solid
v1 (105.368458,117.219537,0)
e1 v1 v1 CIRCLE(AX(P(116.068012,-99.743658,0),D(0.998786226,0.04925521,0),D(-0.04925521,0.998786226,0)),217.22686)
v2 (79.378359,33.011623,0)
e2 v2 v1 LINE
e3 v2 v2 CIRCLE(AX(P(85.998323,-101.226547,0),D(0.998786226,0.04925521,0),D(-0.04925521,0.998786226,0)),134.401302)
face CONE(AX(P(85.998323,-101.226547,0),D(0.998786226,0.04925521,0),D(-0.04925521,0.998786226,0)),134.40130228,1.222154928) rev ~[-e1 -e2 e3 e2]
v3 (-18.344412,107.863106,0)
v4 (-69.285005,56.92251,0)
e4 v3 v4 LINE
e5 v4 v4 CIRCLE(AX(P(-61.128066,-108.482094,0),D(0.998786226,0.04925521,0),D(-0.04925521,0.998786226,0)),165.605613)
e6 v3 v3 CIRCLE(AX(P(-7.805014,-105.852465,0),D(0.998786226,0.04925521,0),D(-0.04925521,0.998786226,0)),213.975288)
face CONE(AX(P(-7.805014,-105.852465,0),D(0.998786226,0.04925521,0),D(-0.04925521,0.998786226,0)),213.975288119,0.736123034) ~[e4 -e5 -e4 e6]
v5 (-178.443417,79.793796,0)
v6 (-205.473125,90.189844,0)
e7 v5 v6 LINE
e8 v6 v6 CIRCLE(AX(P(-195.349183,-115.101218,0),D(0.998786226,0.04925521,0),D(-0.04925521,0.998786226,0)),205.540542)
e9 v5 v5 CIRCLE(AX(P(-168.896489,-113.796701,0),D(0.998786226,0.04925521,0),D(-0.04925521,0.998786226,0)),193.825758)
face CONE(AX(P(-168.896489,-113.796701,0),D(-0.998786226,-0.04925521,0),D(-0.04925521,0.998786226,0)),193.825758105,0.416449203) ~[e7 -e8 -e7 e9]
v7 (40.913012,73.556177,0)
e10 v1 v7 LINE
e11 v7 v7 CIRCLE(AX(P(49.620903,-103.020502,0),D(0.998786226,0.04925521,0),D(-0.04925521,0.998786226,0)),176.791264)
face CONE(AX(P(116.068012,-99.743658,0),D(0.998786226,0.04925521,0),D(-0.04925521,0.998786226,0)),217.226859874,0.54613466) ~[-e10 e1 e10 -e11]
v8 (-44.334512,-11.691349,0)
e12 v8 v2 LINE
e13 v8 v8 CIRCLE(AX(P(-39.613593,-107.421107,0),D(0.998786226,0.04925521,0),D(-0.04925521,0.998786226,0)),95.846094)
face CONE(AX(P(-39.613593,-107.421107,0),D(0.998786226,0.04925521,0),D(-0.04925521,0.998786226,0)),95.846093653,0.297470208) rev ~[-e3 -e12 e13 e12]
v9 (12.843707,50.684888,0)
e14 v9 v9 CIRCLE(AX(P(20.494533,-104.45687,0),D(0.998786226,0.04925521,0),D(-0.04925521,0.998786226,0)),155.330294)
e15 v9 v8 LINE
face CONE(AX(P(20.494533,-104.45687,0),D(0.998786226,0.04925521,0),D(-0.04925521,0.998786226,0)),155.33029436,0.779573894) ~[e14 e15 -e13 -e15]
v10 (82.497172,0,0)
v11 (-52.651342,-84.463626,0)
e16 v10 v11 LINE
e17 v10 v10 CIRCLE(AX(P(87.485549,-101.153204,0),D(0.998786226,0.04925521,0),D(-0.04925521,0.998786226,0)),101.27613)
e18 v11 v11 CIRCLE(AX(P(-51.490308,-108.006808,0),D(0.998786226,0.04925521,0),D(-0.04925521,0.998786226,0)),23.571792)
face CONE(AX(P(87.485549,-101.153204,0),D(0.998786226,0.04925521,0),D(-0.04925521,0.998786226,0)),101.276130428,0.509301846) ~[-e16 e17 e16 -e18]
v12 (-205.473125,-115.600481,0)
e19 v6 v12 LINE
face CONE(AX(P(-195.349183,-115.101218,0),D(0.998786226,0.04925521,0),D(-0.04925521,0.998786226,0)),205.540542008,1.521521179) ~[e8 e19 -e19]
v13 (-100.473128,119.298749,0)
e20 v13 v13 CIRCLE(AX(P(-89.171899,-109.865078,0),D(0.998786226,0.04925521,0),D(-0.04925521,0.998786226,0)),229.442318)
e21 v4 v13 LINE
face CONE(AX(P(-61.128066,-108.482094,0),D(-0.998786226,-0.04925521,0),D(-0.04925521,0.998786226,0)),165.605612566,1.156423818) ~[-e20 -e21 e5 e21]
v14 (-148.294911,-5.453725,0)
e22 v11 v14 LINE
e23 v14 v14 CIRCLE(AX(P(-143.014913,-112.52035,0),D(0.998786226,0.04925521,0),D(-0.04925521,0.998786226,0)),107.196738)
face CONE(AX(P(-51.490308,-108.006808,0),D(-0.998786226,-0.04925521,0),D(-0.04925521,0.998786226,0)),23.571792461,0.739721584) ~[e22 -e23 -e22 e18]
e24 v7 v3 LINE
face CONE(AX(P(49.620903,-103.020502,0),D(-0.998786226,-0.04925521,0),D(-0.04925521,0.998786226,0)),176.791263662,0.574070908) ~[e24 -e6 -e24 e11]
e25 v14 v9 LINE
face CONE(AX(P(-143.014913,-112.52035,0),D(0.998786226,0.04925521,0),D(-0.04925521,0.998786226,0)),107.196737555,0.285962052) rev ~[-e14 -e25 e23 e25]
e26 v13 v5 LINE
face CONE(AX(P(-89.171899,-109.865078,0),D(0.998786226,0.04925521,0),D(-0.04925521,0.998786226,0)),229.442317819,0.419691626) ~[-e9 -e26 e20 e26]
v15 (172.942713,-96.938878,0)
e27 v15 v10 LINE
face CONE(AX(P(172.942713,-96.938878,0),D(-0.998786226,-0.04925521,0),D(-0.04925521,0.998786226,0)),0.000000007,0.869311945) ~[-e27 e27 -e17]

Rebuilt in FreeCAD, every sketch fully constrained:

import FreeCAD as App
import Part
import Sketcher
from FreeCAD import Vector
Q = App.Units.Quantity


def add_polygon(sketch, points):
    """Adds a closed chain of lines whose ends are joined by coincident constraints."""
    first, n = sketch.GeometryCount, len(points)
    for a, b in zip(points, points[1:] + points[:1]):
        sketch.addGeometry(Part.LineSegment(App.Vector(*a, 0), App.Vector(*b, 0)), False)
    for i in range(n):
        sketch.addConstraint(Sketcher.Constraint("Coincident", first + i, 2, first + (i + 1) % n, 1))

doc = App.newDocument("Part")
body = doc.addObject("PartDesign::Body", "Body")

sketch1 = body.newObject("Sketcher::SketchObject", "Sketch")
sketch1.AttachmentSupport = (doc.getObject("XY_Plane"), [""])
sketch1.MapMode = "FlatFace"
add_polygon(sketch1, [(-178, 80), (-205, 90), (-205, -116), (173, -97), (82, 0), (-53, -84), (-148, -5), (13, 51), (-44, -12), (79, 33), (105, 117), (41, 74), (-18, 108), (-69, 57), (-100, 119)])
sketch1.addGeometry(Part.LineSegment(Vector(-205, -116, 0), Vector(173, -97, 0)), True)
sketch1.addConstraint([
    Sketcher.Constraint("Vertical", 1),
    Sketcher.Constraint("Coincident", 15, 1, 1, 2),
    Sketcher.Constraint("Coincident", 15, 2, 2, 2),
    Sketcher.Constraint("PointOnObject", 3, 2, -1),
    Sketcher.Constraint("Angle", 12, Q("-134.999999 deg")),
    Sketcher.Constraint("DistanceY", 4, 2, 5, 2, Q("79.009901 mm")),
    Sketcher.Constraint("DistanceX", 5, 2, 7, 2, Q("103.960399 mm")),
    Sketcher.Constraint("DistanceY", 2, 2, 8, 2, Q("129.950501 mm")),
    Sketcher.Constraint("DistanceX", 4, 2, 8, 2, Q("132.029701 mm")),
    Sketcher.Constraint("DistanceX", 8, 2, 9, 2, Q("25.990099 mm")),
    Sketcher.Constraint("DistanceX", 7, 2, 11, 2, Q("25.990101 mm")),
    Sketcher.Constraint("DistanceX", 10, 2, 15, 2, Q("132.029701 mm")),
    Sketcher.Constraint("Distance", 6, Q("170.637622 mm")),
    Sketcher.Constraint("Distance", 7, Q("84.617632 mm")),
    Sketcher.Constraint("Distance", 9, Q("88.127511 mm")),
    Sketcher.Constraint("Distance", 12, Q("72.04088 mm")),
    Sketcher.Constraint("DistanceY", 1, 2, 1, 1, Q("205.790325 mm")),
    Sketcher.Constraint("DistanceY", 1, 2, -1, 1, Q("115.600481 mm")),
    Sketcher.Constraint("DistanceY", 2, 2, -1, 1, Q("96.938878 mm")),
    Sketcher.Constraint("DistanceX", 5, 2, -1, 1, Q("148.294911 mm")),
    Sketcher.Constraint("DistanceY", 7, 2, -1, 1, Q("11.691349 mm")),
    Sketcher.Constraint("DistanceX", -1, 1, 8, 2, Q("79.378359 mm")),
    Sketcher.Constraint("DistanceX", -1, 1, 10, 2, Q("40.913012 mm")),
    Sketcher.Constraint("DistanceY", -1, 1, 12, 2, Q("56.92251 mm")),
    Sketcher.Constraint("DistanceX", 13, 2, -1, 1, Q("100.473128 mm")),
    Sketcher.Constraint("DistanceY", -1, 1, 13, 2, Q("119.298749 mm")),
    Sketcher.Constraint("DistanceX", 3, 2, 2, 2, Q("90.445541 mm")),
    Sketcher.Constraint("DistanceY", 4, 2, 0, 2, Q("174.653471 mm")),
    Sketcher.Constraint("DistanceX", 0, 2, 6, 2, Q("218.316832 mm")),
    Sketcher.Constraint("DistanceY", 6, 2, 10, 2, Q("22.871289 mm")),
    Sketcher.Constraint("DistanceX", 0, 2, 14, 2, Q("27.029708 mm")),
    Sketcher.Constraint("DistanceY", 14, 2, 0, 2, Q("10.396048 mm")),
])
revolution = body.newObject("PartDesign::Revolution", "Revolution")
revolution.Profile = sketch1
revolution.ReferenceAxis = (sketch1, ["Axis0"])
revolution.Angle = 360

doc.recompute()
